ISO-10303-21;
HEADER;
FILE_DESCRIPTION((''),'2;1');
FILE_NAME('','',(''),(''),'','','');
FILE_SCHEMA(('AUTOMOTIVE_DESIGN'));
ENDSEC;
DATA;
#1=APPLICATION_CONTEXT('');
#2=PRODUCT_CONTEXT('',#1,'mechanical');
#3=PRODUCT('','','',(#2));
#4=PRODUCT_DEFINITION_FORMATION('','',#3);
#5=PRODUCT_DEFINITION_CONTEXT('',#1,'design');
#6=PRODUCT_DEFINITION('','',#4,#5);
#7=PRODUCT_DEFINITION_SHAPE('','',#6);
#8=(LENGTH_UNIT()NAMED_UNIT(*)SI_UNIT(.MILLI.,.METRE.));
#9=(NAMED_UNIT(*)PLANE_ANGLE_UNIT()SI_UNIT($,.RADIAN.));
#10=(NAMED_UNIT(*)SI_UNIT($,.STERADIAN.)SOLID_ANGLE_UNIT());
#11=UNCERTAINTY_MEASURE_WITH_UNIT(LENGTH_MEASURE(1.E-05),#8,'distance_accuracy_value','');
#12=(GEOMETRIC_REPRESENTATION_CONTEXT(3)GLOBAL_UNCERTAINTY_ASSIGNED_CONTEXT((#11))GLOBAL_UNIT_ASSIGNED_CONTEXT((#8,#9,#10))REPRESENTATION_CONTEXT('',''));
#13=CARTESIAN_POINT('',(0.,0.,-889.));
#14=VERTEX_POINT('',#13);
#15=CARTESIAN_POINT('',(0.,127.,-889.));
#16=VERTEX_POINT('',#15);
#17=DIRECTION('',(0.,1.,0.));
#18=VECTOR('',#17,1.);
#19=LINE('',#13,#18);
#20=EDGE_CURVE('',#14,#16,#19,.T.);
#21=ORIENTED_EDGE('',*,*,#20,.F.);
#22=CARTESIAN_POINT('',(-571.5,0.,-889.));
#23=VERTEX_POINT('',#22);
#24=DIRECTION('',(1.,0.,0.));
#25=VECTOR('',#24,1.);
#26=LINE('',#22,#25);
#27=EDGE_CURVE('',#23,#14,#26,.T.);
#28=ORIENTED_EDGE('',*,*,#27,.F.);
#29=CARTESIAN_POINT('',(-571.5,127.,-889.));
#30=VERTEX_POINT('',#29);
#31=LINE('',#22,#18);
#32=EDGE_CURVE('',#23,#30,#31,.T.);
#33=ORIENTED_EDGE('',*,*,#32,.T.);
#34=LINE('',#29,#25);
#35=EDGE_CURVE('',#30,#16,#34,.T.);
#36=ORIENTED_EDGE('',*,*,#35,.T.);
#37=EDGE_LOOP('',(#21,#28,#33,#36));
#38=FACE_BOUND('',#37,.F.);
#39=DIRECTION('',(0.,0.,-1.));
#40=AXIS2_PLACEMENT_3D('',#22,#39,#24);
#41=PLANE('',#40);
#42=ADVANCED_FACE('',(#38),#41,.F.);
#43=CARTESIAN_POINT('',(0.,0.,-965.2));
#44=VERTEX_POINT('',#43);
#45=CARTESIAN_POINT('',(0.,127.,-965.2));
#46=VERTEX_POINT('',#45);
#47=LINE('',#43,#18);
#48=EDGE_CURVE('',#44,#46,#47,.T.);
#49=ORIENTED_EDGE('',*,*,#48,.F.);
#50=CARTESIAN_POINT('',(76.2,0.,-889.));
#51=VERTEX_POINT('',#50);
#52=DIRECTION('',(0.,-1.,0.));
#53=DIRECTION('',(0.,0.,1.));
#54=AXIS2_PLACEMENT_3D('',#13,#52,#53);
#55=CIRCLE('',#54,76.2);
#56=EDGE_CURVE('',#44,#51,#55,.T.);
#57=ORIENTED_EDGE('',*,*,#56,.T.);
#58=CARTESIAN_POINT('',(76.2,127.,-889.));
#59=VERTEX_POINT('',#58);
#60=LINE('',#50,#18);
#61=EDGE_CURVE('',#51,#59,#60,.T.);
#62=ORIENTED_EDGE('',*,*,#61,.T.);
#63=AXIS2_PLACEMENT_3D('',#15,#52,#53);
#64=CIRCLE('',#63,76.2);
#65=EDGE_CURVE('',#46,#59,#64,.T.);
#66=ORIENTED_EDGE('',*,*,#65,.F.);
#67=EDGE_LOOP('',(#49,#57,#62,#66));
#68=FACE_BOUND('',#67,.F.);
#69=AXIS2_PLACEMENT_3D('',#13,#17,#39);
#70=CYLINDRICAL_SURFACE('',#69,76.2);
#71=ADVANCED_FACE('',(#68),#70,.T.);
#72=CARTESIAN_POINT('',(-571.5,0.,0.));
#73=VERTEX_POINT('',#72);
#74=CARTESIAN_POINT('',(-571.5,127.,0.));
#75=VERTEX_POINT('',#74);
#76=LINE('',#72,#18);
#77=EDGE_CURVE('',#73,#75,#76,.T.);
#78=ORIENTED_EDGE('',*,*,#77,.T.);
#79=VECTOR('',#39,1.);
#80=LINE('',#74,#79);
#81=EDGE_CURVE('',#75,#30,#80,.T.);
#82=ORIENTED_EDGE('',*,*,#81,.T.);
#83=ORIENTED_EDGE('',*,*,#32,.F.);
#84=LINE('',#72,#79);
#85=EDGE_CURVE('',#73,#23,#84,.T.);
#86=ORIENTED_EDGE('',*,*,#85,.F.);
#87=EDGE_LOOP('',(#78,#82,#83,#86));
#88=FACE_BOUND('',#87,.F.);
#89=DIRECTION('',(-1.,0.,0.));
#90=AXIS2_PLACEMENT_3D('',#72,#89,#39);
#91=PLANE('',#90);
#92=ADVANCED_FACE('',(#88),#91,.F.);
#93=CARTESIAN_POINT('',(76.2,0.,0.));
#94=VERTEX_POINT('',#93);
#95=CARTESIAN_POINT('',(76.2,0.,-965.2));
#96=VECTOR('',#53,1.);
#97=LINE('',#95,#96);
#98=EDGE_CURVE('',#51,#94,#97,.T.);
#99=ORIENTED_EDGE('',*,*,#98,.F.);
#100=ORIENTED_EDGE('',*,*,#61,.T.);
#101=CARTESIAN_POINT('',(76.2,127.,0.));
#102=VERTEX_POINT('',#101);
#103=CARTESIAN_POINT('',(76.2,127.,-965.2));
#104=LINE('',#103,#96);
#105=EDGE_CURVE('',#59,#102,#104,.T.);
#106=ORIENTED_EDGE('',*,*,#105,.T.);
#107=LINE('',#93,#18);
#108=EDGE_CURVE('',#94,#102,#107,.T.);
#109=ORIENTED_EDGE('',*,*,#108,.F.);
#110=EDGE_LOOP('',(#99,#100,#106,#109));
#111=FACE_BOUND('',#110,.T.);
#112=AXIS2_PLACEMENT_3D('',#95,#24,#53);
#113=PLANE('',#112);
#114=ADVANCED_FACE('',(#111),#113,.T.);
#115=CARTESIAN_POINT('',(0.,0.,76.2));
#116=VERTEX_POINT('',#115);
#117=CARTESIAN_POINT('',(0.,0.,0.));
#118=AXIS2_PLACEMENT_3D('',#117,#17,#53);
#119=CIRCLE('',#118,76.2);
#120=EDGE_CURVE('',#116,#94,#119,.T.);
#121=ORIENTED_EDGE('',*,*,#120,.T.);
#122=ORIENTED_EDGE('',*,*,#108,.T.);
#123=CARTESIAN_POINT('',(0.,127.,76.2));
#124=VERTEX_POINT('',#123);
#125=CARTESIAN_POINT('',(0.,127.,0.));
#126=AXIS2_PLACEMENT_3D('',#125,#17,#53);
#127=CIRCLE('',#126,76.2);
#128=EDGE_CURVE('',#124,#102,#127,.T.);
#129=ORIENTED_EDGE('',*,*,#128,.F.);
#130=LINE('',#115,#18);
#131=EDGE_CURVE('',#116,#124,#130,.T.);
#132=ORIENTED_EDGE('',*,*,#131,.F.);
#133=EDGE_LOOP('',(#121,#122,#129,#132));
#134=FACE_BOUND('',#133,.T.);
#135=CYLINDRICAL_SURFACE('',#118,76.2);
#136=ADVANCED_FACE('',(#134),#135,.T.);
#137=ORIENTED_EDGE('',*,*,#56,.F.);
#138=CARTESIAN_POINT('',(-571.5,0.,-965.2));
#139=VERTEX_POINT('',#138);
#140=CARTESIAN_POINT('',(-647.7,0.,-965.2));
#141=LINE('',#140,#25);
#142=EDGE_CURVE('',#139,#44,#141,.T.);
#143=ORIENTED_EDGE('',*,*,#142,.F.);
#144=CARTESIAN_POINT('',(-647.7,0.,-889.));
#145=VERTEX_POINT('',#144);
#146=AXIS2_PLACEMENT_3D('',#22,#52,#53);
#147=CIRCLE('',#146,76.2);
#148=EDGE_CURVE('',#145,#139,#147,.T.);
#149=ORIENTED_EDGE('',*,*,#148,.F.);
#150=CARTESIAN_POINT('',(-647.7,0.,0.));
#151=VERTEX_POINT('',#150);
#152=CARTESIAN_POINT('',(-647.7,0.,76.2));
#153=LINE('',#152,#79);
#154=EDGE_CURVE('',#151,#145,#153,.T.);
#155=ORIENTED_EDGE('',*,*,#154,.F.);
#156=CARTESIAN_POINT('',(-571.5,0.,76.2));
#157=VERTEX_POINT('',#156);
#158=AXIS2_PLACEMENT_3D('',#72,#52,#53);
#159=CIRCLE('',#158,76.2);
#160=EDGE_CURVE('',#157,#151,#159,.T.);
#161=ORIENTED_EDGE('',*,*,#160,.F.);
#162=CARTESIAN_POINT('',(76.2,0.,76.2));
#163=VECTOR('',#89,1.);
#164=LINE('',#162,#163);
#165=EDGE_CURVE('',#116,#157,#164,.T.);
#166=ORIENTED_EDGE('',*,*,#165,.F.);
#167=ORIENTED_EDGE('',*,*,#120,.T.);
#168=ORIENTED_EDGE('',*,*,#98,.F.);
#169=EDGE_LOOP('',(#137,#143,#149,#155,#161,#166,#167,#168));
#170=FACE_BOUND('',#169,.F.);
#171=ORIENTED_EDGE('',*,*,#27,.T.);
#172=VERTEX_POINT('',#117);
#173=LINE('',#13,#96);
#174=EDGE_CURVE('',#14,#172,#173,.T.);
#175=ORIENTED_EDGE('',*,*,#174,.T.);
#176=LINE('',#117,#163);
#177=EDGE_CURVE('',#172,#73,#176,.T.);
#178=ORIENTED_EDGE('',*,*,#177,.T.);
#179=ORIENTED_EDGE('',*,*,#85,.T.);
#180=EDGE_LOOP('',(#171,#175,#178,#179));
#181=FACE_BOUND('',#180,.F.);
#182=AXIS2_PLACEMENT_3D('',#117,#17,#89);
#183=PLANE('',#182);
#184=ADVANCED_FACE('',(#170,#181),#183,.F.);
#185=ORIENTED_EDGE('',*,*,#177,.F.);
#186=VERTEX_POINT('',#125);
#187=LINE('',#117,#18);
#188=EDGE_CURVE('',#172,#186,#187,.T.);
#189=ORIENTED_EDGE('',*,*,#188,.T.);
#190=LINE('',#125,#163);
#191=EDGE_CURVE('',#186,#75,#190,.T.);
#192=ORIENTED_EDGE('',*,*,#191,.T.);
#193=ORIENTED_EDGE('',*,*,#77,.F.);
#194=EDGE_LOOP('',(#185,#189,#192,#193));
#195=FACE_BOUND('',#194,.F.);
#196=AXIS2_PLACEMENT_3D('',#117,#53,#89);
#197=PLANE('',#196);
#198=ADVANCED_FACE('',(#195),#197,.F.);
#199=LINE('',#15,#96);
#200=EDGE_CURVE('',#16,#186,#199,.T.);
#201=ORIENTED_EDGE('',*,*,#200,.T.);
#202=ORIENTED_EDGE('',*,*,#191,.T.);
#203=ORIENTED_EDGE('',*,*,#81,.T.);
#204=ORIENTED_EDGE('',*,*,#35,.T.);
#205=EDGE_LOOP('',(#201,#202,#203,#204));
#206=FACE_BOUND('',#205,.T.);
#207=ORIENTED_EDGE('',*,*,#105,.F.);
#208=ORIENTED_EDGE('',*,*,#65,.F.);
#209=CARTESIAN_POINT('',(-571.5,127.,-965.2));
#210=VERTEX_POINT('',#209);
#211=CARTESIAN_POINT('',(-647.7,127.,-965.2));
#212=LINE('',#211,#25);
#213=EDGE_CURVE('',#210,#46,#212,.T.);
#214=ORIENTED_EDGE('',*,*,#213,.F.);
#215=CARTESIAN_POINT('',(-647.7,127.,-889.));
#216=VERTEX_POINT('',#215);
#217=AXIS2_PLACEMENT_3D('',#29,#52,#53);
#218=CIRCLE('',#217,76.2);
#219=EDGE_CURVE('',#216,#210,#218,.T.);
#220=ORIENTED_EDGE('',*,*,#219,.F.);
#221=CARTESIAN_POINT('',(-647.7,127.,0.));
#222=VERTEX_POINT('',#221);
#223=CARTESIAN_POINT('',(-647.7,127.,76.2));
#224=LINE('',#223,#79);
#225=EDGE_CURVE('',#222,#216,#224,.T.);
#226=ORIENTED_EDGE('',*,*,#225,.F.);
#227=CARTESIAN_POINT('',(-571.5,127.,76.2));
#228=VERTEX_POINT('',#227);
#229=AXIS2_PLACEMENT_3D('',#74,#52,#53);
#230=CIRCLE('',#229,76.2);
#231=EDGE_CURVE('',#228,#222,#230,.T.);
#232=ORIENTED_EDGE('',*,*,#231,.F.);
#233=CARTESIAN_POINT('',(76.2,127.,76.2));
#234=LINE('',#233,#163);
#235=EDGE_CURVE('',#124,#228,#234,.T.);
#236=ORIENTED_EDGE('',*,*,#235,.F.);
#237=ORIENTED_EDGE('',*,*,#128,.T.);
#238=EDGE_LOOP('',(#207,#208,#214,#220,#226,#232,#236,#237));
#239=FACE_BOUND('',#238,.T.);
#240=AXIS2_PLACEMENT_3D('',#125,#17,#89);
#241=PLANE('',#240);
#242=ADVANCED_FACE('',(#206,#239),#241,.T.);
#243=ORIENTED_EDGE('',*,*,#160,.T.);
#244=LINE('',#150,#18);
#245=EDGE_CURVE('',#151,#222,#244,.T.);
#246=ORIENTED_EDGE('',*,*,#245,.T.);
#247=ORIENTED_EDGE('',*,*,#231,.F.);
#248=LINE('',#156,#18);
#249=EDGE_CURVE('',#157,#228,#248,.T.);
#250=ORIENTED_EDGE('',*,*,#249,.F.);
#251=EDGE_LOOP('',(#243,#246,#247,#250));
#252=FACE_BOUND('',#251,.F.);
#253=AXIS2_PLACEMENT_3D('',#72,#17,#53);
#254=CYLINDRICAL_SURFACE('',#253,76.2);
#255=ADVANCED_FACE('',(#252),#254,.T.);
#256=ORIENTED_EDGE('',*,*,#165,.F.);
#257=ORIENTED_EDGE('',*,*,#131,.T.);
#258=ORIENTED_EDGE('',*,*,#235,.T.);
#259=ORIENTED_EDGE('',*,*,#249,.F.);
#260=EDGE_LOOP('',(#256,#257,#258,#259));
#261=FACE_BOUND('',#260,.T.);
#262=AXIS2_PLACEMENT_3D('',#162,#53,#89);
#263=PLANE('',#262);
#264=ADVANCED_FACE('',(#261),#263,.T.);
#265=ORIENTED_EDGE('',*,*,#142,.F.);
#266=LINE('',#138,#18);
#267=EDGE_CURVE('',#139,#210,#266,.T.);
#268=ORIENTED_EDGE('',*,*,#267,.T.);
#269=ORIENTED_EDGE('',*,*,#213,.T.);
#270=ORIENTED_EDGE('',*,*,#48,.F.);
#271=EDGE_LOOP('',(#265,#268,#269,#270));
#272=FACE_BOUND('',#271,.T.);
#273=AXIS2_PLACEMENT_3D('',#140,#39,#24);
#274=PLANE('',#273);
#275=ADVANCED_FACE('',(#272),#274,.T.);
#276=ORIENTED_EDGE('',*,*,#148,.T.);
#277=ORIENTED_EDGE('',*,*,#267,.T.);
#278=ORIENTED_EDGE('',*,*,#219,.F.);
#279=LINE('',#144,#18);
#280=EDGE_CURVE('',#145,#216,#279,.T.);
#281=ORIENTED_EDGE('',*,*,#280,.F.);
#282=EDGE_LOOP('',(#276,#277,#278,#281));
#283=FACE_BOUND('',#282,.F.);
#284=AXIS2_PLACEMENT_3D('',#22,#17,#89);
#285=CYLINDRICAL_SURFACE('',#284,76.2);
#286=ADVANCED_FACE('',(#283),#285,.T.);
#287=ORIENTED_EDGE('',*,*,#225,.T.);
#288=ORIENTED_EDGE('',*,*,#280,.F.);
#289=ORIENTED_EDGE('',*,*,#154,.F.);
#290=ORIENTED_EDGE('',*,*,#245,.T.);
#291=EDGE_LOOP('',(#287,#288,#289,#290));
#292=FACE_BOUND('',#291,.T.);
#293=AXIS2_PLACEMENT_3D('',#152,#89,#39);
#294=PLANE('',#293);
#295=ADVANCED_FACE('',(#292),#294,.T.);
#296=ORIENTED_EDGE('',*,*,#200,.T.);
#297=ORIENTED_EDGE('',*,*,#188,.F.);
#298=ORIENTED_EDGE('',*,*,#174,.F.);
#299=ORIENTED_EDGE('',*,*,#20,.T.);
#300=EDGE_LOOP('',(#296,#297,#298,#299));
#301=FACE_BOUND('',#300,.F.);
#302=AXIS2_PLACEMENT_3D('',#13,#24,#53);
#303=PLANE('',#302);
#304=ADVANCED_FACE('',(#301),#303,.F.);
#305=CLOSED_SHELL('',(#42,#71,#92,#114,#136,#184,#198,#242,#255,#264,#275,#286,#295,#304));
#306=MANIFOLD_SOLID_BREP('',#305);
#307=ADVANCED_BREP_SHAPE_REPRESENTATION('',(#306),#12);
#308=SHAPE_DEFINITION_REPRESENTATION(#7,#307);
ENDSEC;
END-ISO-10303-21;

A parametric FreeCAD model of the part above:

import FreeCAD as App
import Part
import Sketcher

V = App.Vector
Q = App.Units.Quantity


def edges_at(feature, points):
    """Names of the edges that pass closest to the given points."""
    edges = feature.Shape.Edges
    near = lambda p: min(range(len(edges)), key=lambda i: edges[i].distToShape(Part.Vertex(*p))[0])
    return sorted({f"Edge{near(p) + 1}" for p in points})

doc = App.newDocument("Part")
body = doc.addObject("PartDesign::Body", "Body")

# Sketch on XZ plane
sketch1 = doc.addObject("Sketcher::SketchObject", "Sketch")
body.addObject(sketch1)
sketch1.AttachmentSupport = (doc.XZ_Plane, [""])
sketch1.MapMode = "FlatFace"
sketch1.addGeometry(Part.LineSegment(V(-648, 76, 0), V(76, 76, 0)), False)
sketch1.addGeometry(Part.LineSegment(V(76, 76, 0), V(76, -965, 0)), False)
sketch1.addGeometry(Part.LineSegment(V(76, -965, 0), V(-648, -965, 0)), False)
sketch1.addGeometry(Part.LineSegment(V(-648, -965, 0), V(-648, 76, 0)), False)
sketch1.addGeometry(Part.LineSegment(V(0, -889, 0), V(0, 0, 0)), False)
sketch1.addGeometry(Part.LineSegment(V(0, 0, 0), V(-572, 0, 0)), False)
sketch1.addGeometry(Part.LineSegment(V(-572, 0, 0), V(-572, -889, 0)), False)
sketch1.addGeometry(Part.LineSegment(V(-572, -889, 0), V(0, -889, 0)), False)
sketch1.addConstraint(Sketcher.Constraint("Coincident", 0, 2, 1, 1))
sketch1.addConstraint(Sketcher.Constraint("Coincident", 1, 2, 2, 1))
sketch1.addConstraint(Sketcher.Constraint("Coincident", 2, 2, 3, 1))
sketch1.addConstraint(Sketcher.Constraint("Coincident", 3, 2, 0, 1))
sketch1.addConstraint(Sketcher.Constraint("Coincident", 4, 2, 5, 1))
sketch1.addConstraint(Sketcher.Constraint("Coincident", 5, 2, 6, 1))
sketch1.addConstraint(Sketcher.Constraint("Coincident", 6, 2, 7, 1))
sketch1.addConstraint(Sketcher.Constraint("Coincident", 7, 2, 4, 1))
sketch1.addConstraint(Sketcher.Constraint("Horizontal", 0))
sketch1.addConstraint(Sketcher.Constraint("Vertical", 1))
sketch1.addConstraint(Sketcher.Constraint("Horizontal", 2))
sketch1.addConstraint(Sketcher.Constraint("Vertical", 3))
sketch1.addConstraint(Sketcher.Constraint("Vertical", 4))
sketch1.addConstraint(Sketcher.Constraint("Horizontal", 5))
sketch1.addConstraint(Sketcher.Constraint("Vertical", 6))
sketch1.addConstraint(Sketcher.Constraint("Horizontal", 7))
sketch1.addConstraint(Sketcher.Constraint("Coincident", 4, 2, -1, 1))
sketch1.addConstraint(Sketcher.Constraint("DistanceY", 4, 1, 4, 2, Q("35 in")))
sketch1.addConstraint(Sketcher.Constraint("DistanceX", 5, 2, 5, 1, Q("22.5 in")))
sketch1.addConstraint(Sketcher.Constraint("DistanceX", -1, 1, 0, 2, Q("3 in")))
sketch1.addConstraint(Sketcher.Constraint("DistanceY", -1, 1, 0, 2, Q("3 in")))
sketch1.addConstraint(Sketcher.Constraint("DistanceX", 3, 2, 5, 2, Q("3 in")))
sketch1.addConstraint(Sketcher.Constraint("DistanceY", 2, 2, 6, 2, Q("3 in")))
pad1 = doc.addObject("PartDesign::Pad", "Pad")
body.addObject(pad1)
pad1.Profile = sketch1
pad1.Length = Q("5 in")
pad1.Reversed = True
doc.recompute()

fillet = doc.addObject("PartDesign::Fillet", "Fillet")
body.addObject(fillet)
fillet.Base = (pad1, edges_at(pad1, [
    (-647.7, 63.5, 76.2),
    (76.2, 63.5, 76.2),
    (76.2, 63.5, -965.2),
    (-647.7, 63.5, -965.2),
]))
fillet.Radius = Q("3 in")

doc.recompute()
